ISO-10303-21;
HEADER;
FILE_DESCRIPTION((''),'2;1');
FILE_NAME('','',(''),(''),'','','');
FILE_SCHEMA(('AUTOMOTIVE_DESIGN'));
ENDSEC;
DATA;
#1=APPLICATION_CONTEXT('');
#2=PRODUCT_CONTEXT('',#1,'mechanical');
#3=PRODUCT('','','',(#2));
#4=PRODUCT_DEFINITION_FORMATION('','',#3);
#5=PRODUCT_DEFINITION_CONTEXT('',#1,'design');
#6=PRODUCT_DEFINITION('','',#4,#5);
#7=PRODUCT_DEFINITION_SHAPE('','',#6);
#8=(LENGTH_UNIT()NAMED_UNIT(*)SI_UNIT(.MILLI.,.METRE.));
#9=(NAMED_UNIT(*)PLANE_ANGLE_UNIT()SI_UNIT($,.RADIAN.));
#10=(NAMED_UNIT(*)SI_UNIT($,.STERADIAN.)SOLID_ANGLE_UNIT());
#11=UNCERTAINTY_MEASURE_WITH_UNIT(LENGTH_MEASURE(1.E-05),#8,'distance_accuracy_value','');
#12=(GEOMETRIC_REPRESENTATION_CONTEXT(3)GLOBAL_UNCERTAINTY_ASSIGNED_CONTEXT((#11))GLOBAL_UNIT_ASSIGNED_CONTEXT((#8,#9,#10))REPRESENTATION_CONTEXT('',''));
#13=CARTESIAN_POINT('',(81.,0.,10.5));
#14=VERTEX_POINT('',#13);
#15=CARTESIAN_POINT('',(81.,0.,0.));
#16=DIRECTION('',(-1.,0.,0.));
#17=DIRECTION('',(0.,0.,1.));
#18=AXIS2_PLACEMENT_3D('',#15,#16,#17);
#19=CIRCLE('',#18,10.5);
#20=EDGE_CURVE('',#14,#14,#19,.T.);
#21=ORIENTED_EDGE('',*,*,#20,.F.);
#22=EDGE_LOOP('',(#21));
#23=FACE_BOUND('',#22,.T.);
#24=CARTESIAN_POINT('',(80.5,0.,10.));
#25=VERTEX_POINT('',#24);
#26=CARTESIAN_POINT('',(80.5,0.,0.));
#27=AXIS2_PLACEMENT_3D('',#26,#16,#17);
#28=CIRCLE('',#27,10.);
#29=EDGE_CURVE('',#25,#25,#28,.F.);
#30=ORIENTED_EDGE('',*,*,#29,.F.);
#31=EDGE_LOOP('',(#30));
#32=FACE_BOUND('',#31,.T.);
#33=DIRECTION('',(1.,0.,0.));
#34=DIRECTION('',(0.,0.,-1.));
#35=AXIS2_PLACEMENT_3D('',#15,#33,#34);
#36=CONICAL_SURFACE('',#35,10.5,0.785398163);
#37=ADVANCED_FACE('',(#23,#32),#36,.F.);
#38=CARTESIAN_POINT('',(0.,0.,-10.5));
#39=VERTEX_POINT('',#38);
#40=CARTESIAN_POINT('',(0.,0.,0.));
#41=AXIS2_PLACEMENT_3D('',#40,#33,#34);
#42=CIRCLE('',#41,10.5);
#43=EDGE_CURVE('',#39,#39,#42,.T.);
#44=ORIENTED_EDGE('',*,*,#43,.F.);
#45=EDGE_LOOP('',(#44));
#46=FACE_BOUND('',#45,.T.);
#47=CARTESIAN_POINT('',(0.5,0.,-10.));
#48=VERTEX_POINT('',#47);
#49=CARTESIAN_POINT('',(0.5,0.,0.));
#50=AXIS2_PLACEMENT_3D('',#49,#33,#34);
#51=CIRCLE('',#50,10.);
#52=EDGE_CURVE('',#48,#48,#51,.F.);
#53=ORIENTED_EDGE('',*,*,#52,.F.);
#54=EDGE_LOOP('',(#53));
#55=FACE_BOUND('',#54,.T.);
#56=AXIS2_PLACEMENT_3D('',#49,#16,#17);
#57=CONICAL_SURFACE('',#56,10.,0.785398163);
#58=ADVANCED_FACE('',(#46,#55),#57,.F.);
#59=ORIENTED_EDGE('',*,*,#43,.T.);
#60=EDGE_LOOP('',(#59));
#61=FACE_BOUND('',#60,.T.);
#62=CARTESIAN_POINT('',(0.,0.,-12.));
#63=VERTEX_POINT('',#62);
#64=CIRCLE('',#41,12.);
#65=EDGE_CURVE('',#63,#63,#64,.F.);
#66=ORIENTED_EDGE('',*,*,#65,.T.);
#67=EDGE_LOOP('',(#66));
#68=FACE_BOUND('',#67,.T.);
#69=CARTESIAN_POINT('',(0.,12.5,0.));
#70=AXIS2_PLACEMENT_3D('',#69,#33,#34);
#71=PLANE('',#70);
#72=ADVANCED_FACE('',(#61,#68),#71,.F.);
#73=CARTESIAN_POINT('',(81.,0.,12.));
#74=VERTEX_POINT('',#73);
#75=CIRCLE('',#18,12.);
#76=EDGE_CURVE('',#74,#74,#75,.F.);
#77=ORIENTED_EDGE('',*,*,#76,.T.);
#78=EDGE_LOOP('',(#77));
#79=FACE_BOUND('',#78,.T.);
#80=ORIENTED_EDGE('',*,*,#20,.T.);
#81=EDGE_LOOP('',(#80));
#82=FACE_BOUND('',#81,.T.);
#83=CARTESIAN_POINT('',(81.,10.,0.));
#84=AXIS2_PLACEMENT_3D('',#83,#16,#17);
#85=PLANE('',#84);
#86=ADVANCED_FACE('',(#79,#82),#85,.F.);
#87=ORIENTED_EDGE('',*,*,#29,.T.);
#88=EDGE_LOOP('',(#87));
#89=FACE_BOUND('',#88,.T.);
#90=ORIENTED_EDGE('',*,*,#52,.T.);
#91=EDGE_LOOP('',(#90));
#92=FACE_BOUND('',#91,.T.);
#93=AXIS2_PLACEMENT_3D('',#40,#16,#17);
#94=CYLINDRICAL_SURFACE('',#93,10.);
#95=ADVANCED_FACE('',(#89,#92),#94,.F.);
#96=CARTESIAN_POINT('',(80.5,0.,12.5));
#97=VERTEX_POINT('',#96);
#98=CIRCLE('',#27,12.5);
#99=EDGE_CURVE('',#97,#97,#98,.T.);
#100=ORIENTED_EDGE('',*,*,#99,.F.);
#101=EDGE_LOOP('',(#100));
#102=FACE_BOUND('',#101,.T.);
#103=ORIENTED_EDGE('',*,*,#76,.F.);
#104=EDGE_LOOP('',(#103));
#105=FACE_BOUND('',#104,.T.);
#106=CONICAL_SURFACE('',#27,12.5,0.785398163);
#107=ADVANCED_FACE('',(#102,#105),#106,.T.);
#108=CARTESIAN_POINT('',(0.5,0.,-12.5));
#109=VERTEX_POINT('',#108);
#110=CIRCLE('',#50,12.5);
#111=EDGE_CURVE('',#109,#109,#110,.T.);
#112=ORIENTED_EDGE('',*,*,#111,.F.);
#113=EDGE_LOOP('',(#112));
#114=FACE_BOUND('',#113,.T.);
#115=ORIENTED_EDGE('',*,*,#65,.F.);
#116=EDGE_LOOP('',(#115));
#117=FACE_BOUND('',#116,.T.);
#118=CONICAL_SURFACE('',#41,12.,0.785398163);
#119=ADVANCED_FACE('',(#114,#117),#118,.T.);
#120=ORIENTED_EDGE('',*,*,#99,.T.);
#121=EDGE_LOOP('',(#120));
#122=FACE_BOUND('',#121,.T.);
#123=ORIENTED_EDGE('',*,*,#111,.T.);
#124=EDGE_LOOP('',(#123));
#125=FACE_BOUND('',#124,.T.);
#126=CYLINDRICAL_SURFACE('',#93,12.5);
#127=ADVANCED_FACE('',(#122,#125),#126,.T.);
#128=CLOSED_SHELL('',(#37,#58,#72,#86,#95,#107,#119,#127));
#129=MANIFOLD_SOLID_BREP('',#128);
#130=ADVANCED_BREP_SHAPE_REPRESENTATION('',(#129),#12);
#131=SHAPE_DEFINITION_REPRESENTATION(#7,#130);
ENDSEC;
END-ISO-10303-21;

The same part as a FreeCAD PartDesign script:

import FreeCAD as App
import Part
import Sketcher

V = App.Vector
Q = App.Units.Quantity


def edges_at(feature, points):
    """Names of the edges that pass closest to the given points."""
    edges = feature.Shape.Edges
    near = lambda p: min(range(len(edges)), key=lambda i: edges[i].distToShape(Part.Vertex(*p))[0])
    return sorted({f"Edge{near(p) + 1}" for p in points})


def add_polygon(sketch, points):
    """Adds a closed chain of lines whose ends are joined by coincident constraints."""
    first, n = sketch.GeometryCount, len(points)
    for a, b in zip(points, points[1:] + points[:1]):
        sketch.addGeometry(Part.LineSegment(App.Vector(*a, 0), App.Vector(*b, 0)), False)
    for i in range(n):
        sketch.addConstraint(Sketcher.Constraint("Coincident", first + i, 2, first + (i + 1) % n, 1))

doc = App.newDocument("Part")
body = doc.addObject("PartDesign::Body", "Body")

# Sketch on XY plane
sketch1 = body.newObject("Sketcher::SketchObject", "Sketch")
sketch1.AttachmentSupport = (doc.getObject("XY_Plane"), [""])
sketch1.MapMode = "FlatFace"
add_polygon(sketch1, [(0, 12.5), (0, 10), (81, 10), (81, 12.5)])  # lines 0-3
sketch1.addConstraint(Sketcher.Constraint("Vertical", 0))
sketch1.addConstraint(Sketcher.Constraint("Horizontal", 1))
sketch1.addConstraint(Sketcher.Constraint("Vertical", 2))
sketch1.addConstraint(Sketcher.Constraint("Horizontal", 3))
sketch1.addConstraint(Sketcher.Constraint("PointOnObject", 0, 2, -2))
sketch1.addConstraint(Sketcher.Constraint("DistanceX", 1, 1, 1, 2, Q("81 mm")))
sketch1.addConstraint(Sketcher.Constraint("DistanceY", 0, 2, 0, 1, Q("2.5 mm")))
sketch1.addConstraint(Sketcher.Constraint("DistanceY", -1, 1, 0, 2, Q("10 mm")))
revolution = body.newObject("PartDesign::Revolution", "Revolution")
revolution.Profile = sketch1
revolution.ReferenceAxis = (sketch1, ["H_Axis"])
revolution.Angle = 360
doc.recompute()

chamfer = body.newObject("PartDesign::Chamfer", "Chamfer")
chamfer.Base = (revolution, edges_at(revolution, [
    (81, -12.5, 0),
    (81, -10, 0),
    (0, -10, 0),
    (0, -12.5, 0),
]))
chamfer.Size = 0.5

doc.recompute()
